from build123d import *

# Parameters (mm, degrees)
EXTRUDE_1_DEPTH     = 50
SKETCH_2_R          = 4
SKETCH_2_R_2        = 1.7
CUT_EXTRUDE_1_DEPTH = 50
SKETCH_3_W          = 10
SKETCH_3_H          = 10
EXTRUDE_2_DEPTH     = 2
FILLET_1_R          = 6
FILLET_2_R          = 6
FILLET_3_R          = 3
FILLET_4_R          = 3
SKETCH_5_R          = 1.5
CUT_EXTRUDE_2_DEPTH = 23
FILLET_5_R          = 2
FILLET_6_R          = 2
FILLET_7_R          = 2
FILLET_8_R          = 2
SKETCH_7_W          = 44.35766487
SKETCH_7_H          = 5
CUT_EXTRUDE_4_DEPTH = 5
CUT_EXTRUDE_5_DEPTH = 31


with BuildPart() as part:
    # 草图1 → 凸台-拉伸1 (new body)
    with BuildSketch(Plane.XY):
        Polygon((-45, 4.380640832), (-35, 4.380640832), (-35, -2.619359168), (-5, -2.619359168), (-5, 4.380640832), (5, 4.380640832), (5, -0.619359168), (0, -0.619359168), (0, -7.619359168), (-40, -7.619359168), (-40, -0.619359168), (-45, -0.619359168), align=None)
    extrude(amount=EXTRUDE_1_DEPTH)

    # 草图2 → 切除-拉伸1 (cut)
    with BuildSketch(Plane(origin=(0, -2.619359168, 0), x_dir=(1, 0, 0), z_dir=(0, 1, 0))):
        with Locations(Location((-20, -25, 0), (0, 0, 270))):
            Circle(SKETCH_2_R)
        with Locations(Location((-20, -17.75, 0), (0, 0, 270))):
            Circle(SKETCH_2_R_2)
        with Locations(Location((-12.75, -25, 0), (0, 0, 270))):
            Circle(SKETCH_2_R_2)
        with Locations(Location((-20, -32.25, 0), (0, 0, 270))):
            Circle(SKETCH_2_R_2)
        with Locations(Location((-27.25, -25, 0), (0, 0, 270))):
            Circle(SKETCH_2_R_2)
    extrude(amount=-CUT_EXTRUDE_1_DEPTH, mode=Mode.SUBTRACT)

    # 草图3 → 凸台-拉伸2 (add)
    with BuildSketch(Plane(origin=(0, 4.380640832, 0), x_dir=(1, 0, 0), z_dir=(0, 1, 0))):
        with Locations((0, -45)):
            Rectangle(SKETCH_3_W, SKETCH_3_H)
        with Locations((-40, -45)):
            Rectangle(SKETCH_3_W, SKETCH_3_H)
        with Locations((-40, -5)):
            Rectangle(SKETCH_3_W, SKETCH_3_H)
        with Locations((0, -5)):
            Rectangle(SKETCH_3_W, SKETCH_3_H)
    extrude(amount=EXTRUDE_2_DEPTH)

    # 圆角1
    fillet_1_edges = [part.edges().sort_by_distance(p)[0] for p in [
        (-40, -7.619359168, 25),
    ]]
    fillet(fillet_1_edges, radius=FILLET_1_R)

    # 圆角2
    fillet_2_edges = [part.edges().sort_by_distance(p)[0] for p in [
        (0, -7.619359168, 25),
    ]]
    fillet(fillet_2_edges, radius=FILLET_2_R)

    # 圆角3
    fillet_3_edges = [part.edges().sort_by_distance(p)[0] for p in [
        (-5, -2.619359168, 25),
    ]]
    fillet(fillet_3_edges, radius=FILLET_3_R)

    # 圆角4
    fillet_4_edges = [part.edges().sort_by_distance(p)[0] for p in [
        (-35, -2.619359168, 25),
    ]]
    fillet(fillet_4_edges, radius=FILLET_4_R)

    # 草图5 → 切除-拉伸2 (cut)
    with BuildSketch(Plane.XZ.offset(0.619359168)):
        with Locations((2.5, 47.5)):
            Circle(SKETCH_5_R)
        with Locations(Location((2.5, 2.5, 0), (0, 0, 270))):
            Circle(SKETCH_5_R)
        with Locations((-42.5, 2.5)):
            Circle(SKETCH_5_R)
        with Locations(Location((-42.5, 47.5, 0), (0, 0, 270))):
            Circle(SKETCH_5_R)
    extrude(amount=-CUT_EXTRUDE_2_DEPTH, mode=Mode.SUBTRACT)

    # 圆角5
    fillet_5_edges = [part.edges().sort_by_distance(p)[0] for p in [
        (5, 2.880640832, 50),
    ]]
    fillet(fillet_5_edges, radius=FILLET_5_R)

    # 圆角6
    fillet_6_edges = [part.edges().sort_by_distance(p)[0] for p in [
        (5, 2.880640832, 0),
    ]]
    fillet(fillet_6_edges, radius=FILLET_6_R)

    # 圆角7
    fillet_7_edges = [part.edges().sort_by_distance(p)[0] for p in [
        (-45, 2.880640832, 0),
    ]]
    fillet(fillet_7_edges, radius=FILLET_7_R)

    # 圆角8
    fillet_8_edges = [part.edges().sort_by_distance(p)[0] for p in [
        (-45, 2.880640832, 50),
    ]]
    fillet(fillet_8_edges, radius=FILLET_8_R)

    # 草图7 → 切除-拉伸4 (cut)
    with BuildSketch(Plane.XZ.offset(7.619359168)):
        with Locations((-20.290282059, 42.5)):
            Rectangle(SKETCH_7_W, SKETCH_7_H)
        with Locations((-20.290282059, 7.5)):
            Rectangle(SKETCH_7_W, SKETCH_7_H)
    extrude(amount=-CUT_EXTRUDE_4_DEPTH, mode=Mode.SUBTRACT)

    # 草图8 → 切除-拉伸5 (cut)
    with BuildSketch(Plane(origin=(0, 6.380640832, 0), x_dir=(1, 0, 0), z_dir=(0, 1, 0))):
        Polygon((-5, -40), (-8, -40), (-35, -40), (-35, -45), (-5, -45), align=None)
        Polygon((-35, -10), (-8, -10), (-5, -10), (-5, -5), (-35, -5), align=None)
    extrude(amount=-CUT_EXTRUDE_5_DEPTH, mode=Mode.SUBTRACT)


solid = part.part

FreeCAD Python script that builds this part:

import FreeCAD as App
import Part
import Sketcher


def edges_at(feature, points):
    """Names of the edges that pass closest to the given points."""
    edges = feature.Shape.Edges
    near = lambda p: min(range(len(edges)), key=lambda i: edges[i].distToShape(Part.Vertex(*p))[0])
    return sorted({f"Edge{near(p) + 1}" for p in points})


def add_polygon(sketch, points):
    """Adds a closed chain of lines whose ends are joined by coincident constraints."""
    first, n = sketch.GeometryCount, len(points)
    for a, b in zip(points, points[1:] + points[:1]):
        sketch.addGeometry(Part.LineSegment(App.Vector(*a, 0), App.Vector(*b, 0)), False)
    for i in range(n):
        sketch.addConstraint(Sketcher.Constraint("Coincident", first + i, 2, first + (i + 1) % n, 1))

doc = App.newDocument("Part")
params = doc.addObject("Spreadsheet::Sheet", "Params")
for row, (alias, value) in enumerate([
    ("sketch1_width", "10 mm"),
    ("sketch1_width2", "5 mm"),
    ("sketch1_width3", "40 mm"),
    ("sketch1_height", "7 mm"),
    ("pad1_length", "50 mm"),
    ("sketch2_diameter", "8 mm"),
    ("sketch2_diameter2", "3.4 mm"),
    ("pocket1_length", "50 mm"),
    ("sketch3_width", "10 mm"),
    ("pad2_length", "2 mm"),
    ("fillet_radius", "6 mm"),
    ("fillet2_radius", "6 mm"),
    ("fillet3_radius", "3 mm"),
    ("fillet4_radius", "3 mm"),
    ("sketch4_diameter", "3 mm"),
    ("pocket2_length", "23 mm"),
    ("fillet5_radius", "2 mm"),
    ("fillet6_radius", "2 mm"),
    ("fillet7_radius", "2 mm"),
    ("fillet8_radius", "2 mm"),
    ("sketch5_height", "5 mm"),
    ("pocket3_length", "5 mm"),
    ("sketch6_width", "30 mm"),
    ("sketch6_height", "5 mm"),
    ("pocket4_length", "31 mm"),
], start=1):
    params.set(f"A{row}", alias)
    params.set(f"B{row}", "=" + value)
    params.setAlias(f"B{row}", alias)

body = doc.addObject("PartDesign::Body", "Body")

# Sketch on XY plane
sketch1 = body.newObject("Sketcher::SketchObject", "Sketch")
sketch1.AttachmentSupport = (doc.getObject("XY_Plane"), [""])
sketch1.MapMode = "FlatFace"
add_polygon(sketch1, [(-35, 4), (-45, 4), (-45, -1), (-40, -1), (-40, -8), (0, -8), (0, -1), (5, -1), (5, 4), (-5, 4), (-5, -3), (-35, -3)])  # lines 0-11
sketch1.addConstraint(Sketcher.Constraint("Horizontal", 0))
sketch1.addConstraint(Sketcher.Constraint("Vertical", 1))
sketch1.addConstraint(Sketcher.Constraint("Horizontal", 2))
sketch1.addConstraint(Sketcher.Constraint("Vertical", 3))
sketch1.addConstraint(Sketcher.Constraint("Horizontal", 4))
sketch1.addConstraint(Sketcher.Constraint("Vertical", 5))
sketch1.addConstraint(Sketcher.Constraint("Horizontal", 6))
sketch1.addConstraint(Sketcher.Constraint("Vertical", 7))
sketch1.addConstraint(Sketcher.Constraint("Horizontal", 8))
sketch1.addConstraint(Sketcher.Constraint("Vertical", 9))
sketch1.addConstraint(Sketcher.Constraint("Horizontal", 10))
sketch1.addConstraint(Sketcher.Constraint("Vertical", 11))
sketch1.addConstraint(Sketcher.Constraint("PointOnObject", 4, 2, -2))
sketch1.addConstraint(Sketcher.Constraint("Horizontal", 2, 2, 5, 2))
sketch1.addConstraint(Sketcher.Constraint("Horizontal", 0, 2, 7, 2))
sketch1.addConstraint(Sketcher.Constraint("Equal", 2, 6))
sketch1.addConstraint(Sketcher.Constraint("Equal", 0, 8))
sketch1.addConstraint(Sketcher.Constraint("Equal", 6, 1))
sketch1.addConstraint(Sketcher.Constraint("Equal", 5, 9))
sketch1.addConstraint(Sketcher.Constraint("DistanceX", 0, 2, 0, 1, 10.0))
sketch1.addConstraint(Sketcher.Constraint("DistanceX", 2, 1, 2, 2, 5.0))
sketch1.addConstraint(Sketcher.Constraint("DistanceX", 4, 1, 4, 2, 40.0))
sketch1.addConstraint(Sketcher.Constraint("DistanceY", 3, 2, 3, 1, 7.0))
sketch1.addConstraint(Sketcher.Constraint("DistanceY", -1, 1, 0, 2, 4.380641))
sketch1.setExpression("Constraints[31]", "Params.sketch1_width")
sketch1.setExpression("Constraints[32]", "Params.sketch1_width2")
sketch1.setExpression("Constraints[33]", "Params.sketch1_width3")
sketch1.setExpression("Constraints[34]", "Params.sketch1_height")
pad1 = body.newObject("PartDesign::Pad", "Pad")
pad1.Profile = sketch1
pad1.setExpression("Length", "Params.pad1_length")

# Sketch on XZ plane
sketch2 = body.newObject("Sketcher::SketchObject", "Sketch001")
sketch2.AttachmentSupport = (doc.getObject("XZ_Plane"), [""])
sketch2.MapMode = "FlatFace"
sketch2.AttachmentOffset = App.Placement(App.Vector(0, 0, 2.619359), App.Rotation())
sketch2.addGeometry(Part.Circle(App.Vector(-20, 25, 0), App.Vector(0, 0, 1), 4), False)
sketch2.addGeometry(Part.Circle(App.Vector(-20, 17.8, 0), App.Vector(0, 0, 1), 1.7), False)
sketch2.addGeometry(Part.Circle(App.Vector(-12.8, 25, 0), App.Vector(0, 0, 1), 1.7), False)
sketch2.addGeometry(Part.Circle(App.Vector(-20, 32.2, 0), App.Vector(0, 0, 1), 1.7), False)
sketch2.addGeometry(Part.Circle(App.Vector(-27.2, 25, 0), App.Vector(0, 0, 1), 1.7), False)
sketch2.addConstraint(Sketcher.Constraint("Equal", 1, 2))
sketch2.addConstraint(Sketcher.Constraint("Equal", 2, 3))
sketch2.addConstraint(Sketcher.Constraint("Equal", 3, 4))
sketch2.addConstraint(Sketcher.Constraint("Horizontal", 0, 3, 2, 3))
sketch2.addConstraint(Sketcher.Constraint("Horizontal", 2, 3, 4, 3))
sketch2.addConstraint(Sketcher.Constraint("Vertical", 0, 3, 1, 3))
sketch2.addConstraint(Sketcher.Constraint("Vertical", 1, 3, 3, 3))
sketch2.addConstraint(Sketcher.Constraint("Diameter", 0, 8.0))
sketch2.addConstraint(Sketcher.Constraint("Diameter", 1, 3.4))
sketch2.addConstraint(Sketcher.Constraint("DistanceX", 0, 3, -1, 1, 20.0))
sketch2.addConstraint(Sketcher.Constraint("DistanceY", -1, 1, 0, 3, 25.0))
sketch2.addConstraint(Sketcher.Constraint("DistanceY", 1, 3, 3, 3, 14.5))
sketch2.addConstraint(Sketcher.Constraint("DistanceX", 4, 3, 2, 3, 14.5))
sketch2.addConstraint(Sketcher.Constraint("DistanceY", -1, 1, 1, 3, 17.75))
sketch2.addConstraint(Sketcher.Constraint("DistanceX", 2, 3, -1, 1, 12.75))
sketch2.setExpression("Constraints[7]", "Params.sketch2_diameter")
sketch2.setExpression("Constraints[8]", "Params.sketch2_diameter2")
pocket1 = body.newObject("PartDesign::Pocket", "Pocket")
pocket1.Profile = sketch2
pocket1.setExpression("Length", "Params.pocket1_length")
pocket1.Reversed = True

# Sketch on XZ plane
sketch3 = body.newObject("Sketcher::SketchObject", "Sketch002")
sketch3.AttachmentSupport = (doc.getObject("XZ_Plane"), [""])
sketch3.MapMode = "FlatFace"
sketch3.AttachmentOffset = App.Placement(App.Vector(0, 0, -4.380641), App.Rotation())
add_polygon(sketch3, [(-5, 40), (-5, 50), (5, 50), (5, 40)])  # lines 0-3
add_polygon(sketch3, [(-45, 40), (-45, 50), (-35, 50), (-35, 40)])  # lines 4-7
add_polygon(sketch3, [(-45, 0), (-45, 10), (-35, 10), (-35, 0)])  # lines 8-11
add_polygon(sketch3, [(-5, 0), (-5, 10), (5, 10), (5, 0)])  # lines 12-15
sketch3.addConstraint(Sketcher.Constraint("Vertical", 0))
sketch3.addConstraint(Sketcher.Constraint("Horizontal", 1))
sketch3.addConstraint(Sketcher.Constraint("Vertical", 2))
sketch3.addConstraint(Sketcher.Constraint("Horizontal", 3))
sketch3.addConstraint(Sketcher.Constraint("Vertical", 4))
sketch3.addConstraint(Sketcher.Constraint("Horizontal", 5))
sketch3.addConstraint(Sketcher.Constraint("Vertical", 6))
sketch3.addConstraint(Sketcher.Constraint("Horizontal", 7))
sketch3.addConstraint(Sketcher.Constraint("Vertical", 8))
sketch3.addConstraint(Sketcher.Constraint("Horizontal", 9))
sketch3.addConstraint(Sketcher.Constraint("Vertical", 10))
sketch3.addConstraint(Sketcher.Constraint("Horizontal", 11))
sketch3.addConstraint(Sketcher.Constraint("Vertical", 12))
sketch3.addConstraint(Sketcher.Constraint("Horizontal", 13))
sketch3.addConstraint(Sketcher.Constraint("Vertical", 14))
sketch3.addConstraint(Sketcher.Constraint("Horizontal", 15))
sketch3.addConstraint(Sketcher.Constraint("Symmetric", 14, 2, 15, 2, -1, 1))
sketch3.addConstraint(Sketcher.Constraint("PointOnObject", 10, 2, -1))
sketch3.addConstraint(Sketcher.Constraint("Horizontal", 1, 2, 4, 2))
sketch3.addConstraint(Sketcher.Constraint("Horizontal", 3, 2, 6, 2))
sketch3.addConstraint(Sketcher.Constraint("Horizontal", 9, 2, 12, 2))
sketch3.addConstraint(Sketcher.Constraint("Vertical", 7, 2, 8, 2))
sketch3.addConstraint(Sketcher.Constraint("Vertical", 6, 2, 9, 2))
sketch3.addConstraint(Sketcher.Constraint("Vertical", 3, 2, 12, 2))
sketch3.addConstraint(Sketcher.Constraint("Vertical", 2, 2, 13, 2))
sketch3.addConstraint(Sketcher.Constraint("Equal", 3, 5))
sketch3.addConstraint(Sketcher.Constraint("Equal", 15, 0))
sketch3.addConstraint(Sketcher.Constraint("Equal", 6, 8))
sketch3.addConstraint(Sketcher.Constraint("DistanceX", 1, 1, 1, 2, 10.0))
sketch3.addConstraint(Sketcher.Constraint("DistanceY", -1, 1, 0, 2, 50.0))
sketch3.addConstraint(Sketcher.Constraint("DistanceX", 4, 2, -1, 1, 45.0))
sketch3.setExpression("Constraints[44]", "Params.sketch3_width")
pad2 = body.newObject("PartDesign::Pad", "Pad001")
pad2.Profile = sketch3
pad2.setExpression("Length", "Params.pad2_length")
pad2.Reversed = True
doc.recompute()

fillet = body.newObject("PartDesign::Fillet", "Fillet")
fillet.Base = (pad2, edges_at(pad2, [(-40, -7.619, 25)]))
fillet.setExpression("Radius", "Params.fillet_radius")
doc.recompute()

fillet2 = body.newObject("PartDesign::Fillet", "Fillet001")
fillet2.Base = (fillet, edges_at(fillet, [(0, -7.619, 25)]))
fillet2.setExpression("Radius", "Params.fillet2_radius")
doc.recompute()

fillet3 = body.newObject("PartDesign::Fillet", "Fillet002")
fillet3.Base = (fillet2, edges_at(fillet2, [(-5, -2.619, 25)]))
fillet3.setExpression("Radius", "Params.fillet3_radius")
doc.recompute()

fillet4 = body.newObject("PartDesign::Fillet", "Fillet003")
fillet4.Base = (fillet3, edges_at(fillet3, [(-35, -2.619, 25)]))
fillet4.setExpression("Radius", "Params.fillet4_radius")

# Sketch on XZ plane
sketch4 = body.newObject("Sketcher::SketchObject", "Sketch003")
sketch4.AttachmentSupport = (doc.getObject("XZ_Plane"), [""])
sketch4.MapMode = "FlatFace"
sketch4.AttachmentOffset = App.Placement(App.Vector(0, 0, 0.619359), App.Rotation())
sketch4.addGeometry(Part.Circle(App.Vector(2.5, 47.5, 0), App.Vector(0, 0, 1), 1.5), False)
sketch4.addGeometry(Part.Circle(App.Vector(2.5, 2.5, 0), App.Vector(0, 0, 1), 1.5), False)
sketch4.addGeometry(Part.Circle(App.Vector(-42.5, 2.5, 0), App.Vector(0, 0, 1), 1.5), False)
sketch4.addGeometry(Part.Circle(App.Vector(-42.5, 47.5, 0), App.Vector(0, 0, 1), 1.5), False)
sketch4.addConstraint(Sketcher.Constraint("Equal", 0, 1))
sketch4.addConstraint(Sketcher.Constraint("Equal", 1, 2))
sketch4.addConstraint(Sketcher.Constraint("Equal", 2, 3))
sketch4.addConstraint(Sketcher.Constraint("Horizontal", 1, 3, 2, 3))
sketch4.addConstraint(Sketcher.Constraint("Horizontal", 0, 3, 3, 3))
sketch4.addConstraint(Sketcher.Constraint("Vertical", 0, 3, 1, 3))
sketch4.addConstraint(Sketcher.Constraint("Vertical", 2, 3, 3, 3))
sketch4.addConstraint(Sketcher.Constraint("Diameter", 0, 3.0))
sketch4.addConstraint(Sketcher.Constraint("DistanceY", 1, 3, 0, 3, 45.0))
sketch4.addConstraint(Sketcher.Constraint("DistanceX", 2, 3, 1, 3, 45.0))
sketch4.addConstraint(Sketcher.Constraint("DistanceX", -1, 1, 0, 3, 2.5))
sketch4.addConstraint(Sketcher.Constraint("DistanceY", -1, 1, 0, 3, 47.5))
sketch4.setExpression("Constraints[7]", "Params.sketch4_diameter")
pocket2 = body.newObject("PartDesign::Pocket", "Pocket001")
pocket2.Profile = sketch4
pocket2.setExpression("Length", "Params.pocket2_length")
doc.recompute()

fillet5 = body.newObject("PartDesign::Fillet", "Fillet004")
fillet5.Base = (pocket2, edges_at(pocket2, [(5, 2.881, 50)]))
fillet5.setExpression("Radius", "Params.fillet5_radius")
doc.recompute()

fillet6 = body.newObject("PartDesign::Fillet", "Fillet005")
fillet6.Base = (fillet5, edges_at(fillet5, [(5, 2.881, 0)]))
fillet6.setExpression("Radius", "Params.fillet6_radius")
doc.recompute()

fillet7 = body.newObject("PartDesign::Fillet", "Fillet006")
fillet7.Base = (fillet6, edges_at(fillet6, [(-45, 2.881, 0)]))
fillet7.setExpression("Radius", "Params.fillet7_radius")
doc.recompute()

fillet8 = body.newObject("PartDesign::Fillet", "Fillet007")
fillet8.Base = (fillet7, edges_at(fillet7, [(-45, 2.881, 50)]))
fillet8.setExpression("Radius", "Params.fillet8_radius")

# Sketch on XZ plane
sketch5 = body.newObject("Sketcher::SketchObject", "Sketch004")
sketch5.AttachmentSupport = (doc.getObject("XZ_Plane"), [""])
sketch5.MapMode = "FlatFace"
sketch5.AttachmentOffset = App.Placement(App.Vector(0, 0, 7.619359), App.Rotation())
add_polygon(sketch5, [(-42, 45), (-42, 40), (2, 40), (2, 45)])  # lines 0-3
add_polygon(sketch5, [(-42, 10), (-42, 5), (2, 5), (2, 10)])  # lines 4-7
sketch5.addConstraint(Sketcher.Constraint("Vertical", 0))
sketch5.addConstraint(Sketcher.Constraint("Horizontal", 1))
sketch5.addConstraint(Sketcher.Constraint("Vertical", 2))
sketch5.addConstraint(Sketcher.Constraint("Horizontal", 3))
sketch5.addConstraint(Sketcher.Constraint("Vertical", 4))
sketch5.addConstraint(Sketcher.Constraint("Horizontal", 5))
sketch5.addConstraint(Sketcher.Constraint("Vertical", 6))
sketch5.addConstraint(Sketcher.Constraint("Horizontal", 7))
sketch5.addConstraint(Sketcher.Constraint("Vertical", 3, 2, 4, 2))
sketch5.addConstraint(Sketcher.Constraint("Vertical", 2, 2, 5, 2))
sketch5.addConstraint(Sketcher.Constraint("Equal", 2, 4))
sketch5.addConstraint(Sketcher.Constraint("DistanceY", 0, 2, 0, 1, 5.0))
sketch5.addConstraint(Sketcher.Constraint("DistanceY", -1, 1, 0, 2, 40.0))
sketch5.addConstraint(Sketcher.Constraint("DistanceY", -1, 1, 4, 2, 5.0))
sketch5.addConstraint(Sketcher.Constraint("DistanceX", 1, 1, 1, 2, 44.357665))
sketch5.addConstraint(Sketcher.Constraint("DistanceX", -1, 1, 1, 2, 1.88855))
sketch5.setExpression("Constraints[19]", "Params.sketch5_height")
pocket3 = body.newObject("PartDesign::Pocket", "Pocket002")
pocket3.Profile = sketch5
pocket3.setExpression("Length", "Params.pocket3_length")

# Sketch on XZ plane
sketch6 = body.newObject("Sketcher::SketchObject", "Sketch005")
sketch6.AttachmentSupport = (doc.getObject("XZ_Plane"), [""])
sketch6.MapMode = "FlatFace"
sketch6.AttachmentOffset = App.Placement(App.Vector(0, 0, -6.380641), App.Rotation())
add_polygon(sketch6, [(-5, 40), (-35, 40), (-35, 45), (-5, 45)])  # lines 0-3
add_polygon(sketch6, [(-35, 10), (-5, 10), (-5, 5), (-35, 5)])  # lines 4-7
sketch6.addConstraint(Sketcher.Constraint("Horizontal", 0))
sketch6.addConstraint(Sketcher.Constraint("Vertical", 1))
sketch6.addConstraint(Sketcher.Constraint("Horizontal", 2))
sketch6.addConstraint(Sketcher.Constraint("Vertical", 3))
sketch6.addConstraint(Sketcher.Constraint("Horizontal", 4))
sketch6.addConstraint(Sketcher.Constraint("Vertical", 5))
sketch6.addConstraint(Sketcher.Constraint("Horizontal", 6))
sketch6.addConstraint(Sketcher.Constraint("Vertical", 7))
sketch6.addConstraint(Sketcher.Constraint("Vertical", 3, 2, 4, 2))
sketch6.addConstraint(Sketcher.Constraint("Vertical", 1, 2, 6, 2))
sketch6.addConstraint(Sketcher.Constraint("Equal", 3, 5))
sketch6.addConstraint(Sketcher.Constraint("DistanceX", 0, 2, 0, 1, 30.0))
sketch6.addConstraint(Sketcher.Constraint("DistanceY", 1, 1, 1, 2, 5.0))
sketch6.addConstraint(Sketcher.Constraint("DistanceX", 0, 2, -1, 1, 35.0))
sketch6.addConstraint(Sketcher.Constraint("DistanceY", -1, 1, 0, 2, 40.0))
sketch6.addConstraint(Sketcher.Constraint("DistanceY", -1, 1, 4, 2, 10.0))
sketch6.setExpression("Constraints[19]", "Params.sketch6_width")
sketch6.setExpression("Constraints[20]", "Params.sketch6_height")
pocket4 = body.newObject("PartDesign::Pocket", "Pocket003")
pocket4.Profile = sketch6
pocket4.setExpression("Length", "Params.pocket4_length")
pocket4.Reversed = True

doc.recompute()
